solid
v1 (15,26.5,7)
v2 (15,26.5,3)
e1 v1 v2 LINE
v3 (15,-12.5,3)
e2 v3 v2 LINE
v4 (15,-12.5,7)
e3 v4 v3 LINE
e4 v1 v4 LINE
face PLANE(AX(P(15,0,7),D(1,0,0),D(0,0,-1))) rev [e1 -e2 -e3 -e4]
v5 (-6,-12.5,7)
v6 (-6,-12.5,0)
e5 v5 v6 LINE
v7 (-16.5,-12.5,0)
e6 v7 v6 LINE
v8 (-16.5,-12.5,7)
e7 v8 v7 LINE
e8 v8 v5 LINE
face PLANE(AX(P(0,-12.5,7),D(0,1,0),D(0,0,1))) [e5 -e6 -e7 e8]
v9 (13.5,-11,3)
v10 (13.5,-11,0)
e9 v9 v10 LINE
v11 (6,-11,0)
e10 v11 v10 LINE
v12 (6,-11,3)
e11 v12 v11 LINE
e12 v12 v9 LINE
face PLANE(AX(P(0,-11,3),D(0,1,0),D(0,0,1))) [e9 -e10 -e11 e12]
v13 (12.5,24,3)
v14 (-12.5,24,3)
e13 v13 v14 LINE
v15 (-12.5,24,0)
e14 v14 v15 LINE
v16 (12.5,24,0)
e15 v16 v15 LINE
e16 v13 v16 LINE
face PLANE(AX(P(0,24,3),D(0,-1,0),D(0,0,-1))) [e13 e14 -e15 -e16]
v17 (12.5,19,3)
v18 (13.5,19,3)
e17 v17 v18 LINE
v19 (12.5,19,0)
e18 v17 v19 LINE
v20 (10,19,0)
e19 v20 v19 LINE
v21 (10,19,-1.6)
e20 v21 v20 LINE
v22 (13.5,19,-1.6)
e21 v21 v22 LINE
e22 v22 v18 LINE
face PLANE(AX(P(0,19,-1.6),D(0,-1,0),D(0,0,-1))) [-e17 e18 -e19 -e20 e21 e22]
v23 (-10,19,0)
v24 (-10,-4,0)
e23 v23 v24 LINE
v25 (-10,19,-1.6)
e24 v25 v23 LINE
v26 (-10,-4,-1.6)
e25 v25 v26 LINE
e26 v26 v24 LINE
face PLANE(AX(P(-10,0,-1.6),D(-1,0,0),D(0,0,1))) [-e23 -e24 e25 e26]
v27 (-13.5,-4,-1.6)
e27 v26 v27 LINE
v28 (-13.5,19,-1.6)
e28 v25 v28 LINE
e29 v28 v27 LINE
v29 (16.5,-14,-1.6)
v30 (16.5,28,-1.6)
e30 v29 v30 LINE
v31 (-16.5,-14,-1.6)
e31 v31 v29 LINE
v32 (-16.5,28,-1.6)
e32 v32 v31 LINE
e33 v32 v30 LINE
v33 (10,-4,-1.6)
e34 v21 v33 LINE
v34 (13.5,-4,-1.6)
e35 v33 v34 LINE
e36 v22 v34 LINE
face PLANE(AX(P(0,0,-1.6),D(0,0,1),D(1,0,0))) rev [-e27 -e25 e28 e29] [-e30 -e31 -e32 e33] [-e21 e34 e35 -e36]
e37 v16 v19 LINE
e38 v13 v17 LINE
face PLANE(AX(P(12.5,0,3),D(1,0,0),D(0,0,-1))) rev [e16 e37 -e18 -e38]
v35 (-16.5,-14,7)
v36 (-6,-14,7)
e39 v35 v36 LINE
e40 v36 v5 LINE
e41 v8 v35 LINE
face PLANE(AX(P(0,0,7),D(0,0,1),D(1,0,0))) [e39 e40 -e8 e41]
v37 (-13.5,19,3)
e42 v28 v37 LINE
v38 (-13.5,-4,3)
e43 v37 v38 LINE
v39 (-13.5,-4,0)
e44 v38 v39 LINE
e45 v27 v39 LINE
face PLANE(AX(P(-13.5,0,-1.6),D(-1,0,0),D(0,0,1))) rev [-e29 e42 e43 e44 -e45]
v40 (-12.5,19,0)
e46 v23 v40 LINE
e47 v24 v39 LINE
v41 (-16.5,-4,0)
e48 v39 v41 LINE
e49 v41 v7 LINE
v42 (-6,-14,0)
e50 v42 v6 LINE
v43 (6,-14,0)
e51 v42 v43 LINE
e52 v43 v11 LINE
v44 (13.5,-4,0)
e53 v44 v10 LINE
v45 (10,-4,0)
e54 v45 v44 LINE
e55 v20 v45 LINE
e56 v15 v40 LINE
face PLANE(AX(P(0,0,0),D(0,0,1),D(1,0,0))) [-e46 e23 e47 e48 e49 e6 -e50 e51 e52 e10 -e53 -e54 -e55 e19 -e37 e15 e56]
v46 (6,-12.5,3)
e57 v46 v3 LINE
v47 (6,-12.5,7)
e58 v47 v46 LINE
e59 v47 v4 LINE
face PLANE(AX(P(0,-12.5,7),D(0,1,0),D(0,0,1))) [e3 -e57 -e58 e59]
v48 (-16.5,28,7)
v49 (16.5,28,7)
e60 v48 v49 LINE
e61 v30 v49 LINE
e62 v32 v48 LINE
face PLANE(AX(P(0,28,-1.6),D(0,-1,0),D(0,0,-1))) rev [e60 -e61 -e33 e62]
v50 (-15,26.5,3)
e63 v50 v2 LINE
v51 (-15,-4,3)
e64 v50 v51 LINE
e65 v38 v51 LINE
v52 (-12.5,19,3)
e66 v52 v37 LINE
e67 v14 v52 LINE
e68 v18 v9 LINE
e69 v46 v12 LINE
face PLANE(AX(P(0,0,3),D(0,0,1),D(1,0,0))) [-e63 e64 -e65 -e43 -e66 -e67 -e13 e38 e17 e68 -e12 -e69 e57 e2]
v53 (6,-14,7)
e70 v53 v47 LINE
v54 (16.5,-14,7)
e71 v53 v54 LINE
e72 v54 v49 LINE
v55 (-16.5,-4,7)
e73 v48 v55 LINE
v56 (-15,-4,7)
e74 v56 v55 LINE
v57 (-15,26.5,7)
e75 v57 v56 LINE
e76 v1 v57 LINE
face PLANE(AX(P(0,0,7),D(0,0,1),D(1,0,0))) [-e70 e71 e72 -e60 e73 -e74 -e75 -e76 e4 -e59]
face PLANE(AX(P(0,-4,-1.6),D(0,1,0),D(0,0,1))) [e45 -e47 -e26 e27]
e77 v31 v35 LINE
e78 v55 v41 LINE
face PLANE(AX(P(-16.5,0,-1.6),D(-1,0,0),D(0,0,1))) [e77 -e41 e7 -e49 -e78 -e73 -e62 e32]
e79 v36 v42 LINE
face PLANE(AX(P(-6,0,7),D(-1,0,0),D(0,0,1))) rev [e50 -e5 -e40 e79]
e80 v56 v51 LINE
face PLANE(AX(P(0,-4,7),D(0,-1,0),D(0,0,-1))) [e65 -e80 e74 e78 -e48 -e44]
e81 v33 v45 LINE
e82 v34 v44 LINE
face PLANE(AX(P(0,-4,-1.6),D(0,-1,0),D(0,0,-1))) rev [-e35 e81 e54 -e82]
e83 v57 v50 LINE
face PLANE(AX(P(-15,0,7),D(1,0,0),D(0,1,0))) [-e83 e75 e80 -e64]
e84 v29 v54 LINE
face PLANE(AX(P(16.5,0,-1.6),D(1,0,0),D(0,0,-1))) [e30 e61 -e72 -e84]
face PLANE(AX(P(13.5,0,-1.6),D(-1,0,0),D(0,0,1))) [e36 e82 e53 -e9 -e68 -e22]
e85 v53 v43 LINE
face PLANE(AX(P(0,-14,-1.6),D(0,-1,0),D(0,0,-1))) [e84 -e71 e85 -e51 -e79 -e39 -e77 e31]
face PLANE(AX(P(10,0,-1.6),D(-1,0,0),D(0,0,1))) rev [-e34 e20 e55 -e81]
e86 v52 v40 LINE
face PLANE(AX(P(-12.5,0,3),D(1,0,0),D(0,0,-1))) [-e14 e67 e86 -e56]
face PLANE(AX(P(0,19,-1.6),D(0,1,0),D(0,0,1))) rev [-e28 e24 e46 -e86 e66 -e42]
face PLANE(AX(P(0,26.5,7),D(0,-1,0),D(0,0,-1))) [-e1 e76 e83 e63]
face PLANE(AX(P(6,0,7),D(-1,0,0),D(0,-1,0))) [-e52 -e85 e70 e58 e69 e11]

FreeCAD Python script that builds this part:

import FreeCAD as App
import Part
import Sketcher
from FreeCAD import Vector
Q = App.Units.Quantity


def add_polygon(sketch, points):
    """Adds a closed chain of lines whose ends are joined by coincident constraints."""
    first, n = sketch.GeometryCount, len(points)
    for a, b in zip(points, points[1:] + points[:1]):
        sketch.addGeometry(Part.LineSegment(App.Vector(*a, 0), App.Vector(*b, 0)), False)
    for i in range(n):
        sketch.addConstraint(Sketcher.Constraint("Coincident", first + i, 2, first + (i + 1) % n, 1))

doc = App.newDocument("Part")
body = doc.addObject("PartDesign::Body", "Body")

# Sketch on XY plane
sketch1 = doc.addObject("Sketcher::SketchObject", "Sketch")
body.addObject(sketch1)
sketch1.AttachmentSupport = (doc.XY_Plane, [""])
sketch1.MapMode = "FlatFace"
add_polygon(sketch1, [(16.5, -14), (16.5, 28), (-16.5, 28), (-16.5, -14)])  # lines 0-3
add_polygon(sketch1, [(-13.5, 19), (-10, 19), (-10, -4), (-13.5, -4)])  # lines 4-7
add_polygon(sketch1, [(10, -4), (10, 19), (13.5, 19), (13.5, -4)])  # lines 8-11
sketch1.addConstraint(Sketcher.Constraint("Vertical", 0))
sketch1.addConstraint(Sketcher.Constraint("Horizontal", 1))
sketch1.addConstraint(Sketcher.Constraint("Vertical", 2))
sketch1.addConstraint(Sketcher.Constraint("Horizontal", 3))
sketch1.addConstraint(Sketcher.Constraint("Horizontal", 4))
sketch1.addConstraint(Sketcher.Constraint("Vertical", 5))
sketch1.addConstraint(Sketcher.Constraint("Horizontal", 6))
sketch1.addConstraint(Sketcher.Constraint("Vertical", 7))
sketch1.addConstraint(Sketcher.Constraint("Vertical", 8))
sketch1.addConstraint(Sketcher.Constraint("Horizontal", 9))
sketch1.addConstraint(Sketcher.Constraint("Vertical", 10))
sketch1.addConstraint(Sketcher.Constraint("Horizontal", 11))
sketch1.addConstraint(Sketcher.Constraint("Symmetric", 4, 2, 8, 2, -2))
sketch1.addConstraint(Sketcher.Constraint("Symmetric", 6, 2, 10, 2, -2))
sketch1.addConstraint(Sketcher.Constraint("DistanceX", 1, 2, 1, 1, Q("33 mm")))
sketch1.addConstraint(Sketcher.Constraint("DistanceY", 0, 1, 0, 2, Q("42 mm")))
sketch1.addConstraint(Sketcher.Constraint("DistanceY", 5, 2, 5, 1, Q("23 mm")))
sketch1.addConstraint(Sketcher.Constraint("DistanceX", 4, 1, 4, 2, Q("3.5 mm")))
sketch1.addConstraint(Sketcher.Constraint("DistanceY", -1, 1, 0, 2, Q("28 mm")))
sketch1.addConstraint(Sketcher.Constraint("DistanceX", 4, 2, -1, 1, Q("10 mm")))
sketch1.addConstraint(Sketcher.Constraint("DistanceY", -1, 1, 4, 2, Q("19 mm")))
sketch1.addConstraint(Sketcher.Constraint("DistanceX", 2, 2, 6, 2, Q("3 mm")))
pad1 = doc.addObject("PartDesign::Pad", "Pad")
body.addObject(pad1)
pad1.Profile = sketch1
pad1.Length = 1.6
pad1.Reversed = True

# Sketch on XY plane
sketch2 = doc.addObject("Sketcher::SketchObject", "Sketch001")
body.addObject(sketch2)
sketch2.AttachmentSupport = (doc.XY_Plane, [""])
sketch2.MapMode = "FlatFace"
add_polygon(sketch2, [(-16.5, -4), (-15, -4), (-15, 26.5), (15, 26.5), (15, -12.5), (6, -12.5), (6, -14), (16.5, -14), (16.5, 28), (-16.5, 28)])  # lines 0-9
add_polygon(sketch2, [(-6, -14), (-6, -12.5), (-16.5, -12.5), (-16.5, -14)])  # lines 10-13
sketch2.addConstraint(Sketcher.Constraint("Horizontal", 0))
sketch2.addConstraint(Sketcher.Constraint("Vertical", 1))
sketch2.addConstraint(Sketcher.Constraint("Horizontal", 2))
sketch2.addConstraint(Sketcher.Constraint("Vertical", 3))
sketch2.addConstraint(Sketcher.Constraint("Horizontal", 4))
sketch2.addConstraint(Sketcher.Constraint("Vertical", 5))
sketch2.addConstraint(Sketcher.Constraint("Horizontal", 6))
sketch2.addConstraint(Sketcher.Constraint("Vertical", 7))
sketch2.addConstraint(Sketcher.Constraint("Horizontal", 8))
sketch2.addConstraint(Sketcher.Constraint("Vertical", 9))
sketch2.addConstraint(Sketcher.Constraint("Vertical", 10))
sketch2.addConstraint(Sketcher.Constraint("Horizontal", 11))
sketch2.addConstraint(Sketcher.Constraint("Vertical", 12))
sketch2.addConstraint(Sketcher.Constraint("Horizontal", 13))
sketch2.addConstraint(Sketcher.Constraint("Symmetric", 4, 2, 10, 2, -2))
sketch2.addConstraint(Sketcher.Constraint("Symmetric", 6, 2, 12, 2, -2))
sketch2.addConstraint(Sketcher.Constraint("Vertical", 9, 2, 11, 2))
sketch2.addConstraint(Sketcher.Constraint("Equal", 0, 5))
sketch2.addConstraint(Sketcher.Constraint("DistanceX", 2, 1, 2, 2, Q("30 mm")))
sketch2.addConstraint(Sketcher.Constraint("DistanceX", 4, 2, 4, 1, Q("9 mm")))
sketch2.addConstraint(Sketcher.Constraint("DistanceX", 8, 2, 8, 1, Q("33 mm")))
sketch2.addConstraint(Sketcher.Constraint("DistanceY", 3, 2, 3, 1, Q("39 mm")))
sketch2.addConstraint(Sketcher.Constraint("DistanceY", 7, 1, 7, 2, Q("42 mm")))
sketch2.addConstraint(Sketcher.Constraint("DistanceY", 9, 2, 9, 1, Q("32 mm")))
sketch2.addConstraint(Sketcher.Constraint("DistanceX", 0, 1, 0, 2, Q("1.5 mm")))
sketch2.addConstraint(Sketcher.Constraint("DistanceY", 0, 2, -1, 1, Q("4 mm")))
pad2 = doc.addObject("PartDesign::Pad", "Pad001")
body.addObject(pad2)
pad2.Profile = sketch2
pad2.Length = 7

# Sketch on XY plane
sketch3 = doc.addObject("Sketcher::SketchObject", "Sketch002")
body.addObject(sketch3)
sketch3.AttachmentSupport = (doc.XY_Plane, [""])
sketch3.MapMode = "FlatFace"
add_polygon(sketch3, [(13.5, 19), (13.5, -11), (6, -11), (6, -12.5), (15, -12.5), (15, 26.5), (-15, 26.5), (-15, -4), (-13.5, -4), (-13.5, 19), (-12.5, 19), (-12.5, 24), (12.5, 24), (12.5, 19)])  # lines 0-13
sketch3.addConstraint(Sketcher.Constraint("Vertical", 0))
sketch3.addConstraint(Sketcher.Constraint("Horizontal", 1))
sketch3.addConstraint(Sketcher.Constraint("Vertical", 2))
sketch3.addConstraint(Sketcher.Constraint("Horizontal", 3))
sketch3.addConstraint(Sketcher.Constraint("Vertical", 4))
sketch3.addConstraint(Sketcher.Constraint("Horizontal", 5))
sketch3.addConstraint(Sketcher.Constraint("Vertical", 6))
sketch3.addConstraint(Sketcher.Constraint("Horizontal", 7))
sketch3.addConstraint(Sketcher.Constraint("Vertical", 8))
sketch3.addConstraint(Sketcher.Constraint("Horizontal", 9))
sketch3.addConstraint(Sketcher.Constraint("Vertical", 10))
sketch3.addConstraint(Sketcher.Constraint("Horizontal", 11))
sketch3.addConstraint(Sketcher.Constraint("Vertical", 12))
sketch3.addConstraint(Sketcher.Constraint("Horizontal", 13))
sketch3.addConstraint(Sketcher.Constraint("Symmetric", 9, 2, 12, 2, -2))
sketch3.addConstraint(Sketcher.Constraint("Equal", 9, 13))
sketch3.addConstraint(Sketcher.Constraint("Equal", 5, 0))
sketch3.addConstraint(Sketcher.Constraint("Equal", 7, 2))
sketch3.addConstraint(Sketcher.Constraint("DistanceX", 3, 1, 3, 2, Q("9 mm")))
sketch3.addConstraint(Sketcher.Constraint("DistanceX", 5, 2, 5, 1, Q("30 mm")))
sketch3.addConstraint(Sketcher.Constraint("DistanceX", 9, 1, 9, 2, Q("1 mm")))
sketch3.addConstraint(Sketcher.Constraint("DistanceX", 11, 1, 11, 2, Q("25 mm")))
sketch3.addConstraint(Sketcher.Constraint("DistanceY", 4, 1, 4, 2, Q("39 mm")))
sketch3.addConstraint(Sketcher.Constraint("DistanceY", 8, 1, 8, 2, Q("23 mm")))
sketch3.addConstraint(Sketcher.Constraint("DistanceY", 10, 1, 10, 2, Q("5 mm")))
sketch3.addConstraint(Sketcher.Constraint("DistanceX", 1, 2, 1, 1, Q("7.5 mm")))
sketch3.addConstraint(Sketcher.Constraint("DistanceY", 0, 2, -1, 1, Q("11 mm")))
pad3 = doc.addObject("PartDesign::Pad", "Pad002")
body.addObject(pad3)
pad3.Profile = sketch3
pad3.Length = 3

doc.recompute()
